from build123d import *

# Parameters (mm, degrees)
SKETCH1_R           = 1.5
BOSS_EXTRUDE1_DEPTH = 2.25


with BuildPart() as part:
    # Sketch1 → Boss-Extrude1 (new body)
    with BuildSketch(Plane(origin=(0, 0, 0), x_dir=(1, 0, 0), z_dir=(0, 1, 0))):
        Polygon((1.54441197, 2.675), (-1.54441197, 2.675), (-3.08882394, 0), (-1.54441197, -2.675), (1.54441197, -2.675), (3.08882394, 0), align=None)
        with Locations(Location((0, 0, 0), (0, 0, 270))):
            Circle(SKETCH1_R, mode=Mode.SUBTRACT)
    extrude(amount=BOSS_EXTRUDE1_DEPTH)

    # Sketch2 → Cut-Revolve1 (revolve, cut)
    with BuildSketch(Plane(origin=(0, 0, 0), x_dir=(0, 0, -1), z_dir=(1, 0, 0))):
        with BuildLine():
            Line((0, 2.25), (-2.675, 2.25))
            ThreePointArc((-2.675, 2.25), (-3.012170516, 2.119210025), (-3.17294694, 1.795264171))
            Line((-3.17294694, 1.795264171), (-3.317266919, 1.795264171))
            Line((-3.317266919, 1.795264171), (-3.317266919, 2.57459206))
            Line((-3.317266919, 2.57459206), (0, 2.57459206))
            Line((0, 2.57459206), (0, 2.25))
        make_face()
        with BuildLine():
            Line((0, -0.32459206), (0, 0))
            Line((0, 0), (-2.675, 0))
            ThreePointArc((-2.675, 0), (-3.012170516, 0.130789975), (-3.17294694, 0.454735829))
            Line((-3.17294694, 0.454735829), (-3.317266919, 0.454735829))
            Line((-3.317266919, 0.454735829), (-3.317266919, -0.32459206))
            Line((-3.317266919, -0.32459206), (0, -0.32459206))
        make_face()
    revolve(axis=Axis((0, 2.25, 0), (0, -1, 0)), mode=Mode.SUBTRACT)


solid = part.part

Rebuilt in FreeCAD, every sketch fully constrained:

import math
import FreeCAD as App
import Part
import Sketcher

V = App.Vector
Q = App.Units.Quantity

doc = App.newDocument("Part")
body = doc.addObject("PartDesign::Body", "Body")

# Sketch on XZ plane
sketch1 = body.newObject("Sketcher::SketchObject", "Sketch")
sketch1.AttachmentSupport = (doc.getObject("XZ_Plane"), [""])
sketch1.MapMode = "FlatFace"
sketch1.addGeometry([
    Part.LineSegment(V(1.5, -2.7, 0), V(-1.5, -2.7, 0)),  # 0
    Part.LineSegment(V(-1.5, -2.7, 0), V(-3.1, 0, 0)),  # 1
    Part.LineSegment(V(-3.1, 0, 0), V(-1.5, 2.7, 0)),  # 2
    Part.LineSegment(V(-1.5, 2.7, 0), V(1.5, 2.7, 0)),  # 3
    Part.LineSegment(V(1.5, 2.7, 0), V(3.1, 0, 0)),  # 4
    Part.LineSegment(V(3.1, 0, 0), V(1.5, -2.7, 0)),  # 5
    Part.Circle(V(0, 0, 0), V(0, 0, 1), 1.5),  # 6
], False)
sketch1.addConstraint([
    Sketcher.Constraint("Coincident", 0, 2, 1, 1),
    Sketcher.Constraint("Coincident", 1, 2, 2, 1),
    Sketcher.Constraint("Coincident", 2, 2, 3, 1),
    Sketcher.Constraint("Coincident", 3, 2, 4, 1),
    Sketcher.Constraint("Coincident", 4, 2, 5, 1),
    Sketcher.Constraint("Coincident", 5, 2, 0, 1),
    Sketcher.Constraint("Horizontal", 0),
    Sketcher.Constraint("Horizontal", 3),
    Sketcher.Constraint("Coincident", 6, 3, -1, 1),
    Sketcher.Constraint("Symmetric", 0, 2, 3, 2, -1, 1),
    Sketcher.Constraint("Symmetric", 1, 2, 4, 2, -1, 1),
    Sketcher.Constraint("PointOnObject", 1, 2, -1),
    Sketcher.Constraint("Parallel", 2, 5),
    Sketcher.Constraint("Vertical", 0, 2, 2, 2),
    Sketcher.Constraint("Diameter", 6, Q("3 mm")),
    Sketcher.Constraint("Angle", 1, Q("120 deg")),
    Sketcher.Constraint("DistanceY", 0, 2, 2, 2, Q("5.35 mm")),
    Sketcher.Constraint("DistanceX", 0, 2, 0, 1, Q("3.088824 mm")),
])
pad1 = body.newObject("PartDesign::Pad", "Pad")
pad1.Profile = sketch1
pad1.Length = 2.25
pad1.Reversed = True

# Sketch on YZ plane
sketch2 = body.newObject("Sketcher::SketchObject", "Sketch001")
sketch2.AttachmentSupport = (doc.getObject("YZ_Plane"), [""])
sketch2.MapMode = "FlatFace"
sketch2.addGeometry([
    Part.LineSegment(V(2.25, 2.67, 0), V(2.25, 0, 0)),  # 0
    Part.LineSegment(V(2.25, 0, 0), V(2.57, 0, 0)),  # 1
    Part.LineSegment(V(2.57, 0, 0), V(2.57, 3.32, 0)),  # 2
    Part.LineSegment(V(2.57, 3.32, 0), V(1.8, 3.32, 0)),  # 3
    Part.LineSegment(V(1.8, 3.32, 0), V(1.8, 3.17, 0)),  # 4
    Part.ArcOfCircle(Part.Circle(V(1.75, 2.67, 0), V(0, 0, 1), 0.5), math.radians(0), math.radians(85)),  # 5
    Part.LineSegment(V(-0.32, 0, 0), V(0, 0, 0)),  # 6
    Part.LineSegment(V(0, 0, 0), V(0, 2.67, 0)),  # 7
    Part.ArcOfCircle(Part.Circle(V(0.5, 2.67, 0), V(0, 0, 1), 0.5), math.radians(95), math.radians(180)),  # 8
    Part.LineSegment(V(0.45, 3.17, 0), V(0.45, 3.32, 0)),  # 9
    Part.LineSegment(V(0.45, 3.32, 0), V(-0.32, 3.32, 0)),  # 10
    Part.LineSegment(V(-0.32, 3.32, 0), V(-0.32, 0, 0)),  # 11
], False)
sketch2.addConstraint([
    Sketcher.Constraint("Coincident", 0, 2, 1, 1),
    Sketcher.Constraint("Coincident", 1, 2, 2, 1),
    Sketcher.Constraint("Coincident", 2, 2, 3, 1),
    Sketcher.Constraint("Coincident", 3, 2, 4, 1),
    Sketcher.Constraint("Coincident", 4, 2, 5, 2),
    Sketcher.Constraint("Tangent", 5, 1, 0, 1),
    Sketcher.Constraint("Coincident", 6, 2, 7, 1),
    Sketcher.Constraint("Tangent", 7, 2, 8, 2),
    Sketcher.Constraint("Coincident", 8, 1, 9, 1),
    Sketcher.Constraint("Coincident", 9, 2, 10, 1),
    Sketcher.Constraint("Coincident", 10, 2, 11, 1),
    Sketcher.Constraint("Coincident", 11, 2, 6, 1),
    Sketcher.Constraint("Vertical", 0),
    Sketcher.Constraint("Horizontal", 1),
    Sketcher.Constraint("Vertical", 2),
    Sketcher.Constraint("Horizontal", 3),
    Sketcher.Constraint("Vertical", 4),
    Sketcher.Constraint("Horizontal", 6),
    Sketcher.Constraint("Vertical", 7),
    Sketcher.Constraint("Vertical", 9),
    Sketcher.Constraint("Horizontal", 10),
    Sketcher.Constraint("Vertical", 11),
    Sketcher.Constraint("Coincident", 6, 2, -1, 1),
    Sketcher.Constraint("Equal", 5, 8),
    Sketcher.Constraint("PointOnObject", 0, 2, -1),
    Sketcher.Constraint("Horizontal", 5, 3, 8, 3),
    Sketcher.Constraint("Horizontal", 4, 2, 8, 1),
    Sketcher.Constraint("Horizontal", 3, 2, 9, 2),
    Sketcher.Constraint("Equal", 1, 6),
    Sketcher.Constraint("Radius", 5, Q("0.5 mm")),
    Sketcher.Constraint("DistanceY", 0, 2, 0, 1, Q("2.675 mm")),
    Sketcher.Constraint("DistanceX", -1, 1, 5, 3, Q("1.75 mm")),
    Sketcher.Constraint("DistanceY", 4, 2, 4, 1, Q("0.14432 mm")),
    Sketcher.Constraint("DistanceX", 1, 1, 1, 2, Q("0.324592 mm")),
    Sketcher.Constraint("DistanceX", 3, 2, 3, 1, Q("0.779328 mm")),
])
groove = body.newObject("PartDesign::Groove", "Groove")
groove.Profile = sketch2
groove.ReferenceAxis = (sketch2, ["H_Axis"])
groove.Angle = 360

doc.recompute()
